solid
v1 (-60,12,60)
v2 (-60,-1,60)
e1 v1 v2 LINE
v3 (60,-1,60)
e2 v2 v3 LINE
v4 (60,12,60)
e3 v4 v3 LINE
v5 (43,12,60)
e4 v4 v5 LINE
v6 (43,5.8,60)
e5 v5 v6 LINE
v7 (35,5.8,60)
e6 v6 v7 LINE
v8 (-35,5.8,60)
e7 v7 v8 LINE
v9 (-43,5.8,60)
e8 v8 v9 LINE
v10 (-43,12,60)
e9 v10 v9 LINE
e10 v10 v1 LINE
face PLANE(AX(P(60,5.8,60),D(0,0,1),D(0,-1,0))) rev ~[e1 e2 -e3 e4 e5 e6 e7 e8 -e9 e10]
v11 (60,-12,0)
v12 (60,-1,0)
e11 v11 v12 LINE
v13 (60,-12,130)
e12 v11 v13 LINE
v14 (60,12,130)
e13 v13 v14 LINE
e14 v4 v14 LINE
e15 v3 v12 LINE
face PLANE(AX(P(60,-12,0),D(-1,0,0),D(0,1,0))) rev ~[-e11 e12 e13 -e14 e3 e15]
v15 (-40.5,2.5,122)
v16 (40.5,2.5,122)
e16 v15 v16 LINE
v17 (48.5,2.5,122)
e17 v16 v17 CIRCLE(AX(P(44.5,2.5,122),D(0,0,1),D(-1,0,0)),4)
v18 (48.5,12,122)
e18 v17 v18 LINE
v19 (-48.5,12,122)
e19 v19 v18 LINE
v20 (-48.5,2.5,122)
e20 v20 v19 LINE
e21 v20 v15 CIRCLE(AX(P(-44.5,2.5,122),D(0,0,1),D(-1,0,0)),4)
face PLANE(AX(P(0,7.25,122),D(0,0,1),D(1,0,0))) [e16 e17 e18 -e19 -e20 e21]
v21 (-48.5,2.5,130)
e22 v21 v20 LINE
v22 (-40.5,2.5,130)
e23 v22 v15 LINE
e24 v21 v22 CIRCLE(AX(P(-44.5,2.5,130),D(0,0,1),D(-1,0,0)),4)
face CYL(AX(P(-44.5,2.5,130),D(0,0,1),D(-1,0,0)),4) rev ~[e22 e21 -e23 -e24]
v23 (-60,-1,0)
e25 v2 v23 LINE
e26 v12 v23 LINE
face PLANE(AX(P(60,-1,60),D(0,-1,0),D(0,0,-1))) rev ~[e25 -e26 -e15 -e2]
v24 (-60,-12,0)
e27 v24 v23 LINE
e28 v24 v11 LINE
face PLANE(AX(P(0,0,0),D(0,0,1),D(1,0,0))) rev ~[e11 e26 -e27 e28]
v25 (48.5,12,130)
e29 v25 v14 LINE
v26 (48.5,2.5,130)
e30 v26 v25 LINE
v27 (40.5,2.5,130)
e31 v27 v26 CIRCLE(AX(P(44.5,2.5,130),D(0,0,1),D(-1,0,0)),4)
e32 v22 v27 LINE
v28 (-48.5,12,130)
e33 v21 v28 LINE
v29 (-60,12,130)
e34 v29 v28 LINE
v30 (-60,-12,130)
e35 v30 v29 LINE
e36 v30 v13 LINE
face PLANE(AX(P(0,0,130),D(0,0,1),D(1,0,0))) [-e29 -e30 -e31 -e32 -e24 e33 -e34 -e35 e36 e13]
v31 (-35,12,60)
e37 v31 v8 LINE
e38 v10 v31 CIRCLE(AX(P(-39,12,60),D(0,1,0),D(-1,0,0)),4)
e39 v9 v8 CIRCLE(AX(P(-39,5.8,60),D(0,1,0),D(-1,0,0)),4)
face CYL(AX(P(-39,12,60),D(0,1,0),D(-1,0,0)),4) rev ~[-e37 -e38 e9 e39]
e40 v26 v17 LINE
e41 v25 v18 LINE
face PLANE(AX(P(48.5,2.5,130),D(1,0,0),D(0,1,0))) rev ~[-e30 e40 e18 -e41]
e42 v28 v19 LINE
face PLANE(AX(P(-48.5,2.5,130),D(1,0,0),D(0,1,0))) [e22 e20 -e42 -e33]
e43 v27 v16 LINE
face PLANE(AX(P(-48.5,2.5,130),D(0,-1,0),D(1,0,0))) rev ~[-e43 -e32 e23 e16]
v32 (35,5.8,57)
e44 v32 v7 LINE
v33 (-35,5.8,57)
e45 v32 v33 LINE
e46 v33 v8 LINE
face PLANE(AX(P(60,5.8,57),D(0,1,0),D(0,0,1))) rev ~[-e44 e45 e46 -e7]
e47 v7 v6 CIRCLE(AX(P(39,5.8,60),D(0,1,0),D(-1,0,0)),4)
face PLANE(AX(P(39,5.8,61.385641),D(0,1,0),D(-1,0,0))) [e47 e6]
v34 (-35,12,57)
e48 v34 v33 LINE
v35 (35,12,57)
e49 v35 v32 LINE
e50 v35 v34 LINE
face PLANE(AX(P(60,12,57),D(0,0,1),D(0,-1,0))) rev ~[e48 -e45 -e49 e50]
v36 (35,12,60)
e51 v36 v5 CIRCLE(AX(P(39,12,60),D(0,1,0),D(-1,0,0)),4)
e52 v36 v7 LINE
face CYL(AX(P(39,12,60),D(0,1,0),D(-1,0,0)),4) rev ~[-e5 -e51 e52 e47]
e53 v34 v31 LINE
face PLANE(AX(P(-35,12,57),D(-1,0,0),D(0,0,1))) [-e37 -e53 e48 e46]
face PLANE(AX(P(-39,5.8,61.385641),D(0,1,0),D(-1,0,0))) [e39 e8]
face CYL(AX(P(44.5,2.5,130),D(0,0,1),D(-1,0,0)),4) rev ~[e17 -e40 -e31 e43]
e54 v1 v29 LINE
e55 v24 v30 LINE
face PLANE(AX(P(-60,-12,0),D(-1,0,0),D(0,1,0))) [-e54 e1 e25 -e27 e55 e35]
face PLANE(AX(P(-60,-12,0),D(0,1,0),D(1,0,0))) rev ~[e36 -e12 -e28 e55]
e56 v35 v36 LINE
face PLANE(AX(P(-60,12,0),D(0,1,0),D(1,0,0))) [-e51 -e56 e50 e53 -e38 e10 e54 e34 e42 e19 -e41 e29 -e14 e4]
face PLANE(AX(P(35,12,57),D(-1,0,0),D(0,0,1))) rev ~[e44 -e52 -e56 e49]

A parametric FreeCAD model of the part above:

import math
import FreeCAD as App
import Part
import Sketcher

doc = App.newDocument("Part")
body = doc.addObject("PartDesign::Body", "Body")

# Sketch on XY plane
sketch1 = body.newObject("Sketcher::SketchObject", "Sketch")
sketch1.AttachmentSupport = (doc.getObject("XY_Plane"), [""])
sketch1.MapMode = "FlatFace"
sketch1.addGeometry(Part.LineSegment(App.Vector(-60, 12, 0), App.Vector(-60, -12, 0)), False)
sketch1.addGeometry(Part.LineSegment(App.Vector(-60, -12, 0), App.Vector(60, -12, 0)), False)
sketch1.addGeometry(Part.LineSegment(App.Vector(60, -12, 0), App.Vector(60, 12, 0)), False)
sketch1.addGeometry(Part.LineSegment(App.Vector(60, 12, 0), App.Vector(-60, 12, 0)), False)
sketch1.addConstraint(Sketcher.Constraint("Coincident", 0, 2, 1, 1))
sketch1.addConstraint(Sketcher.Constraint("Coincident", 1, 2, 2, 1))
sketch1.addConstraint(Sketcher.Constraint("Coincident", 2, 2, 3, 1))
sketch1.addConstraint(Sketcher.Constraint("Coincident", 3, 2, 0, 1))
sketch1.addConstraint(Sketcher.Constraint("Vertical", 0))
sketch1.addConstraint(Sketcher.Constraint("Horizontal", 1))
sketch1.addConstraint(Sketcher.Constraint("Vertical", 2))
sketch1.addConstraint(Sketcher.Constraint("Horizontal", 3))
sketch1.addConstraint(Sketcher.Constraint("Symmetric", 0, 2, 2, 2, -1, 1))
sketch1.addConstraint(Sketcher.Constraint("DistanceX", 1, 1, 1, 2, 120.0))
sketch1.addConstraint(Sketcher.Constraint("DistanceY", 0, 2, 0, 1, 24.0))
pad1 = body.newObject("PartDesign::Pad", "Pad")
pad1.Profile = sketch1
pad1.Length = 130

# Sketch on XY plane
sketch2 = body.newObject("Sketcher::SketchObject", "Sketch001")
sketch2.AttachmentSupport = (doc.getObject("XY_Plane"), [""])
sketch2.MapMode = "FlatFace"
sketch2.AttachmentOffset = App.Placement(App.Vector(0, 0, 130), App.Rotation())
sketch2.addGeometry(Part.LineSegment(App.Vector(-48, 12, 0), App.Vector(-48, 2, 0)), False)
sketch2.addGeometry(Part.LineSegment(App.Vector(-48, 2, 0), App.Vector(48, 2, 0)), False)
sketch2.addGeometry(Part.LineSegment(App.Vector(48, 2, 0), App.Vector(48, 12, 0)), False)
sketch2.addGeometry(Part.LineSegment(App.Vector(48, 12, 0), App.Vector(-48, 12, 0)), False)
sketch2.addConstraint(Sketcher.Constraint("Coincident", 0, 2, 1, 1))
sketch2.addConstraint(Sketcher.Constraint("Coincident", 1, 2, 2, 1))
sketch2.addConstraint(Sketcher.Constraint("Coincident", 2, 2, 3, 1))
sketch2.addConstraint(Sketcher.Constraint("Coincident", 3, 2, 0, 1))
sketch2.addConstraint(Sketcher.Constraint("Vertical", 0))
sketch2.addConstraint(Sketcher.Constraint("Horizontal", 1))
sketch2.addConstraint(Sketcher.Constraint("Vertical", 2))
sketch2.addConstraint(Sketcher.Constraint("Horizontal", 3))
sketch2.addConstraint(Sketcher.Constraint("DistanceX", 1, 1, 1, 2, 97.0))
sketch2.addConstraint(Sketcher.Constraint("DistanceY", 0, 2, 0, 1, 9.5))
sketch2.addConstraint(Sketcher.Constraint("DistanceY", -1, 1, 2, 2, 12.0))
sketch2.addConstraint(Sketcher.Constraint("DistanceX", 0, 2, -1, 1, 48.5))
pocket1 = body.newObject("PartDesign::Pocket", "Pocket")
pocket1.Profile = sketch2
pocket1.Length = 8

# Sketch on XY plane
sketch3 = body.newObject("Sketcher::SketchObject", "Sketch002")
sketch3.AttachmentSupport = (doc.getObject("XY_Plane"), [""])
sketch3.MapMode = "FlatFace"
sketch3.AttachmentOffset = App.Placement(App.Vector(0, 0, 130), App.Rotation())
sketch3.addGeometry(Part.LineSegment(App.Vector(-40.5, 2.5, 0), App.Vector(-48.5, 2.5, 0)), False)
sketch3.addGeometry(Part.ArcOfCircle(Part.Circle(App.Vector(-44.5, 2.5, 0), App.Vector(0, 0, 1), 4), math.radians(180), math.radians(360)), False)
sketch3.addGeometry(Part.ArcOfCircle(Part.Circle(App.Vector(44.5, 2.5, 0), App.Vector(0, 0, 1), 4), math.radians(180), math.radians(360)), False)
sketch3.addGeometry(Part.LineSegment(App.Vector(48.5, 2.5, 0), App.Vector(40.5, 2.5, 0)), False)
sketch3.addConstraint(Sketcher.Constraint("Coincident", 0, 1, 1, 2))
sketch3.addConstraint(Sketcher.Constraint("Coincident", 1, 1, 0, 2))
sketch3.addConstraint(Sketcher.Constraint("Coincident", 2, 1, 3, 2))
sketch3.addConstraint(Sketcher.Constraint("Coincident", 3, 1, 2, 2))
sketch3.addConstraint(Sketcher.Constraint("Horizontal", 0))
sketch3.addConstraint(Sketcher.Constraint("Horizontal", 3))
sketch3.addConstraint(Sketcher.Constraint("Equal", 1, 2))
sketch3.addConstraint(Sketcher.Constraint("Symmetric", 1, 3, 2, 3, -2))
sketch3.addConstraint(Sketcher.Constraint("Horizontal", 2, 3, 0, 1))
sketch3.addConstraint(Sketcher.Constraint("Horizontal", 1, 1, 2, 1))
sketch3.addConstraint(Sketcher.Constraint("Radius", 1, 4.0))
sketch3.addConstraint(Sketcher.Constraint("DistanceX", 1, 3, 2, 3, 89.0))
sketch3.addConstraint(Sketcher.Constraint("DistanceY", -1, 1, 1, 3, 2.5))
pocket2 = body.newObject("PartDesign::Pocket", "Pocket001")
pocket2.Profile = sketch3
pocket2.Length = 8

# Sketch on YZ plane
sketch4 = body.newObject("Sketcher::SketchObject", "Sketch003")
sketch4.AttachmentSupport = (doc.getObject("YZ_Plane"), [""])
sketch4.MapMode = "FlatFace"
sketch4.AttachmentOffset = App.Placement(App.Vector(0, 0, 60), App.Rotation())
sketch4.addGeometry(Part.LineSegment(App.Vector(-1, 0, 0), App.Vector(12, 0, 0)), False)
sketch4.addGeometry(Part.LineSegment(App.Vector(12, 0, 0), App.Vector(12, 57, 0)), False)
sketch4.addGeometry(Part.LineSegment(App.Vector(12, 57, 0), App.Vector(5.8, 57, 0)), False)
sketch4.addGeometry(Part.LineSegment(App.Vector(5.8, 57, 0), App.Vector(5.8, 60, 0)), False)
sketch4.addGeometry(Part.LineSegment(App.Vector(5.8, 60, 0), App.Vector(-1, 60, 0)), False)
sketch4.addGeometry(Part.LineSegment(App.Vector(-1, 60, 0), App.Vector(-1, 0, 0)), False)
sketch4.addConstraint(Sketcher.Constraint("Coincident", 0, 2, 1, 1))
sketch4.addConstraint(Sketcher.Constraint("Coincident", 1, 2, 2, 1))
sketch4.addConstraint(Sketcher.Constraint("Coincident", 2, 2, 3, 1))
sketch4.addConstraint(Sketcher.Constraint("Coincident", 3, 2, 4, 1))
sketch4.addConstraint(Sketcher.Constraint("Coincident", 4, 2, 5, 1))
sketch4.addConstraint(Sketcher.Constraint("Coincident", 5, 2, 0, 1))
sketch4.addConstraint(Sketcher.Constraint("Horizontal", 0))
sketch4.addConstraint(Sketcher.Constraint("Vertical", 1))
sketch4.addConstraint(Sketcher.Constraint("Horizontal", 2))
sketch4.addConstraint(Sketcher.Constraint("Vertical", 3))
sketch4.addConstraint(Sketcher.Constraint("Horizontal", 4))
sketch4.addConstraint(Sketcher.Constraint("Vertical", 5))
sketch4.addConstraint(Sketcher.Constraint("PointOnObject", 0, 2, -1))
sketch4.addConstraint(Sketcher.Constraint("DistanceX", 0, 1, 0, 2, 13.0))
sketch4.addConstraint(Sketcher.Constraint("DistanceY", 1, 1, 1, 2, 57.0))
sketch4.addConstraint(Sketcher.Constraint("DistanceY", 3, 1, 3, 2, 3.0))
sketch4.addConstraint(Sketcher.Constraint("DistanceX", 2, 2, 2, 1, 6.2))
sketch4.addConstraint(Sketcher.Constraint("DistanceX", -1, 1, 0, 2, 12.0))
pocket3 = body.newObject("PartDesign::Pocket", "Pocket002")
pocket3.Profile = sketch4
pocket3.Type = "ThroughAll"

# Sketch on XZ plane
sketch5 = body.newObject("Sketcher::SketchObject", "Sketch004")
sketch5.AttachmentSupport = (doc.getObject("XZ_Plane"), [""])
sketch5.MapMode = "FlatFace"
sketch5.AttachmentOffset = App.Placement(App.Vector(0, 0, -12), App.Rotation())
sketch5.addGeometry(Part.LineSegment(App.Vector(60, 60, 0), App.Vector(60, 57, 0)), False)
sketch5.addGeometry(Part.LineSegment(App.Vector(60, 57, 0), App.Vector(35, 57, 0)), False)
sketch5.addGeometry(Part.LineSegment(App.Vector(35, 57, 0), App.Vector(35, 60, 0)), False)
sketch5.addGeometry(Part.LineSegment(App.Vector(35, 60, 0), App.Vector(60, 60, 0)), False)
sketch5.addGeometry(Part.LineSegment(App.Vector(-35, 60, 0), App.Vector(-35, 57, 0)), False)
sketch5.addGeometry(Part.LineSegment(App.Vector(-35, 57, 0), App.Vector(-60, 57, 0)), False)
sketch5.addGeometry(Part.LineSegment(App.Vector(-60, 57, 0), App.Vector(-60, 60, 0)), False)
sketch5.addGeometry(Part.LineSegment(App.Vector(-60, 60, 0), App.Vector(-35, 60, 0)), False)
sketch5.addConstraint(Sketcher.Constraint("Coincident", 0, 2, 1, 1))
sketch5.addConstraint(Sketcher.Constraint("Coincident", 1, 2, 2, 1))
sketch5.addConstraint(Sketcher.Constraint("Coincident", 2, 2, 3, 1))
sketch5.addConstraint(Sketcher.Constraint("Coincident", 3, 2, 0, 1))
sketch5.addConstraint(Sketcher.Constraint("Coincident", 4, 2, 5, 1))
sketch5.addConstraint(Sketcher.Constraint("Coincident", 5, 2, 6, 1))
sketch5.addConstraint(Sketcher.Constraint("Coincident", 6, 2, 7, 1))
sketch5.addConstraint(Sketcher.Constraint("Coincident", 7, 2, 4, 1))
sketch5.addConstraint(Sketcher.Constraint("Vertical", 0))
sketch5.addConstraint(Sketcher.Constraint("Horizontal", 1))
sketch5.addConstraint(Sketcher.Constraint("Vertical", 2))
sketch5.addConstraint(Sketcher.Constraint("Horizontal", 3))
sketch5.addConstraint(Sketcher.Constraint("Vertical", 4))
sketch5.addConstraint(Sketcher.Constraint("Horizontal", 5))
sketch5.addConstraint(Sketcher.Constraint("Vertical", 6))
sketch5.addConstraint(Sketcher.Constraint("Horizontal", 7))
sketch5.addConstraint(Sketcher.Constraint("Symmetric", 1, 2, 4, 2, -2))
sketch5.addConstraint(Sketcher.Constraint("Symmetric", 3, 2, 6, 2, -2))
sketch5.addConstraint(Sketcher.Constraint("DistanceX", 1, 2, 1, 1, 25.0))
sketch5.addConstraint(Sketcher.Constraint("DistanceY", 0, 2, 0, 1, 3.0))
sketch5.addConstraint(Sketcher.Constraint("DistanceX", -1, 1, 0, 2, 60.0))
sketch5.addConstraint(Sketcher.Constraint("DistanceY", -1, 1, 0, 2, 57.0))
pocket4 = body.newObject("PartDesign::Pocket", "Pocket003")
pocket4.Profile = sketch5
pocket4.Length = 13
pocket4.Reversed = True

# Sketch on XZ plane
sketch6 = body.newObject("Sketcher::SketchObject", "Sketch005")
sketch6.AttachmentSupport = (doc.getObject("XZ_Plane"), [""])
sketch6.MapMode = "FlatFace"
sketch6.AttachmentOffset = App.Placement(App.Vector(0, 0, -12), App.Rotation())
sketch6.addGeometry(Part.LineSegment(App.Vector(43, 60, 0), App.Vector(35, 60, 0)), False)
sketch6.addGeometry(Part.ArcOfCircle(Part.Circle(App.Vector(39, 60, 0), App.Vector(0, 0, 1), 4), math.radians(0), math.radians(180)), False)
sketch6.addGeometry(Part.ArcOfCircle(Part.Circle(App.Vector(-39, 60, 0), App.Vector(0, 0, 1), 4), math.radians(0), math.radians(180)), False)
sketch6.addGeometry(Part.LineSegment(App.Vector(-35, 60, 0), App.Vector(-43, 60, 0)), False)
sketch6.addConstraint(Sketcher.Constraint("Coincident", 0, 1, 1, 1))
sketch6.addConstraint(Sketcher.Constraint("Coincident", 1, 2, 0, 2))
sketch6.addConstraint(Sketcher.Constraint("Coincident", 2, 1, 3, 1))
sketch6.addConstraint(Sketcher.Constraint("Coincident", 3, 2, 2, 2))
sketch6.addConstraint(Sketcher.Constraint("Horizontal", 0))
sketch6.addConstraint(Sketcher.Constraint("Horizontal", 3))
sketch6.addConstraint(Sketcher.Constraint("Equal", 1, 2))
sketch6.addConstraint(Sketcher.Constraint("Symmetric", 1, 3, 2, 3, -2))
sketch6.addConstraint(Sketcher.Constraint("Horizontal", 2, 3, 0, 1))
sketch6.addConstraint(Sketcher.Constraint("Horizontal", 1, 2, 2, 1))
sketch6.addConstraint(Sketcher.Constraint("Radius", 1, 4.0))
sketch6.addConstraint(Sketcher.Constraint("DistanceX", -1, 1, 1, 3, 39.0))
sketch6.addConstraint(Sketcher.Constraint("DistanceY", -1, 1, 1, 3, 60.0))
pocket5 = body.newObject("PartDesign::Pocket", "Pocket004")
pocket5.Profile = sketch6
pocket5.Length = 6.2
pocket5.Reversed = True

doc.recompute()
